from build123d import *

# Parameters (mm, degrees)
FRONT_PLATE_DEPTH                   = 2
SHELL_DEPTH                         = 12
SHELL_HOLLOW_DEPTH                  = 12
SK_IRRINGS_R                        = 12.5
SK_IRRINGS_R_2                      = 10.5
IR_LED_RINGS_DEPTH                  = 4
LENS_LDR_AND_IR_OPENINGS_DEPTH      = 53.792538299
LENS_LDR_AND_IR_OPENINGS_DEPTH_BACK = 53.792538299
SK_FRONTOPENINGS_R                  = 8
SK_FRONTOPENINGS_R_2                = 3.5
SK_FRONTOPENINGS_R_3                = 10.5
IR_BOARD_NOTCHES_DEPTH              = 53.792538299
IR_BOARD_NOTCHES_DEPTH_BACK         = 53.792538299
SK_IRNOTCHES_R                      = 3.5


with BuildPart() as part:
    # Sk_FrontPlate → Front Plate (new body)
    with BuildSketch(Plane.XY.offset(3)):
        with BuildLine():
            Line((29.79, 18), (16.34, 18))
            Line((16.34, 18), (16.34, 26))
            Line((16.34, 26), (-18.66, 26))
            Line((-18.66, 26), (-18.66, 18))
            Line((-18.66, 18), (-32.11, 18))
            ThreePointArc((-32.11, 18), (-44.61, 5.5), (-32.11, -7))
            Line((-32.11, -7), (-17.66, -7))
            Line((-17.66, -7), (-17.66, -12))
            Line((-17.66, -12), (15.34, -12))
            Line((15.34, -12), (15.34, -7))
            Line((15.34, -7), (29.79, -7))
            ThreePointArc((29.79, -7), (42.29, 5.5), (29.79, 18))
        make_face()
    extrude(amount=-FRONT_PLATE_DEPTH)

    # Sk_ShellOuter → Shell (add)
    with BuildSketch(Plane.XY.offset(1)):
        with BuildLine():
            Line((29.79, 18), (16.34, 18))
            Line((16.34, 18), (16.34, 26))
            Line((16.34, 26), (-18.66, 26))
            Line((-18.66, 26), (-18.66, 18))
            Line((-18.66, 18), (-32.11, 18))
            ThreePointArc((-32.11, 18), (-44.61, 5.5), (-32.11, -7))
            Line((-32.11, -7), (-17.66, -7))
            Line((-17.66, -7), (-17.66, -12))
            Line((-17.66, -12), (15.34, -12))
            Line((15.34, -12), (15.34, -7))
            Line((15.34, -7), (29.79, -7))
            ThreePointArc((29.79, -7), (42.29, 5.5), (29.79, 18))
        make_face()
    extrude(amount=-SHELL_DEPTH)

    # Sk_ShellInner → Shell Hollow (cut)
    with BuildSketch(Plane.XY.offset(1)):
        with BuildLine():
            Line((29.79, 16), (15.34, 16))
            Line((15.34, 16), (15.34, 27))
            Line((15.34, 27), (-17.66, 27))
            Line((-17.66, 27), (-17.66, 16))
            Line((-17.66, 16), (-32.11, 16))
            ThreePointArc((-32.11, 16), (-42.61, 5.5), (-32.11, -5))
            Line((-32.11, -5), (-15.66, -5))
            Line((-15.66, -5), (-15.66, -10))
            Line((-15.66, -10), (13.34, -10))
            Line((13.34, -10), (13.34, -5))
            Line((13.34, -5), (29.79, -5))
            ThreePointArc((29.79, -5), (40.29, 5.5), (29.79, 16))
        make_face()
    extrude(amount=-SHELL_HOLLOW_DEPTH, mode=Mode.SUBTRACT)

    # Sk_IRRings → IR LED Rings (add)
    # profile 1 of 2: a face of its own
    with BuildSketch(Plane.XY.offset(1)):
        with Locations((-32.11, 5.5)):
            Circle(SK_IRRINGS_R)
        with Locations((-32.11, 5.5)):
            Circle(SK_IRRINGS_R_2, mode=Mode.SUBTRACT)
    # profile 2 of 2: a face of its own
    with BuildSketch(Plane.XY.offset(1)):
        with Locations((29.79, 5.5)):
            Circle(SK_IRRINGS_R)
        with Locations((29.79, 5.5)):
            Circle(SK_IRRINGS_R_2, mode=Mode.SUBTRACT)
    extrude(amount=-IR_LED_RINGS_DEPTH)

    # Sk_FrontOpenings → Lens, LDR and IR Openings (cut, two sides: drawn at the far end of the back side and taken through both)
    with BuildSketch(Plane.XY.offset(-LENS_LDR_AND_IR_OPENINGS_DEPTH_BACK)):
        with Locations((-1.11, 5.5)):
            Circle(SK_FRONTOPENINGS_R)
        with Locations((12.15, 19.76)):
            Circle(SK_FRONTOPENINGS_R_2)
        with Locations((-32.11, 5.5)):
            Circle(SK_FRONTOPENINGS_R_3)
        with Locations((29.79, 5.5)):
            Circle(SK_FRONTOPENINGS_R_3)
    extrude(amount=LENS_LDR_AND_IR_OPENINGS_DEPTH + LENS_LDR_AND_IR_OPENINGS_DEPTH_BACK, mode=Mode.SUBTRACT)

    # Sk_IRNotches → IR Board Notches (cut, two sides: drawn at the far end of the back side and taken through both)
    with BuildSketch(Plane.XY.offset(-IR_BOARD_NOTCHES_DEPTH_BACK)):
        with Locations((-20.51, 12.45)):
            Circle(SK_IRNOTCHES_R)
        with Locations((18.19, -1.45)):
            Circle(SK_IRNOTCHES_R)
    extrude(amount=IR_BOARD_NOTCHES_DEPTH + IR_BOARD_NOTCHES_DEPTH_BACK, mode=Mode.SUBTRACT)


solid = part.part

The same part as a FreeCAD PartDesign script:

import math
import FreeCAD as App
import Part
import Sketcher
from FreeCAD import Vector
Q = App.Units.Quantity

doc = App.newDocument("Part")
body = doc.addObject("PartDesign::Body", "Body")

# Sketch on XY plane
sketch1 = body.newObject("Sketcher::SketchObject", "Sketch")
sketch1.AttachmentSupport = (doc.getObject("XY_Plane"), [""])
sketch1.MapMode = "FlatFace"
sketch1.AttachmentOffset = App.Placement(Vector(0, 0, 3), App.Rotation())
sketch1.addGeometry(Part.LineSegment(Vector(30, 18, 0), Vector(16, 18, 0)), False)
sketch1.addGeometry(Part.LineSegment(Vector(16, 18, 0), Vector(16, 26, 0)), False)
sketch1.addGeometry(Part.LineSegment(Vector(16, 26, 0), Vector(-19, 26, 0)), False)
sketch1.addGeometry(Part.LineSegment(Vector(-19, 26, 0), Vector(-19, 18, 0)), False)
sketch1.addGeometry(Part.LineSegment(Vector(-19, 18, 0), Vector(-32, 18, 0)), False)
sketch1.addGeometry(Part.ArcOfCircle(Part.Circle(Vector(-32, 6, 0), Vector(0, 0, 1), 12), math.radians(90), math.radians(270)), False)
sketch1.addGeometry(Part.LineSegment(Vector(-32, -7, 0), Vector(-18, -7, 0)), False)
sketch1.addGeometry(Part.LineSegment(Vector(-18, -7, 0), Vector(-18, -12, 0)), False)
sketch1.addGeometry(Part.LineSegment(Vector(-18, -12, 0), Vector(15, -12, 0)), False)
sketch1.addGeometry(Part.LineSegment(Vector(15, -12, 0), Vector(15, -7, 0)), False)
sketch1.addGeometry(Part.LineSegment(Vector(15, -7, 0), Vector(30, -7, 0)), False)
sketch1.addGeometry(Part.ArcOfCircle(Part.Circle(Vector(30, 6, 0), Vector(0, 0, 1), 12), math.radians(-90), math.radians(90)), False)
sketch1.addConstraint(Sketcher.Constraint("Coincident", 0, 2, 1, 1))
sketch1.addConstraint(Sketcher.Constraint("Coincident", 1, 2, 2, 1))
sketch1.addConstraint(Sketcher.Constraint("Coincident", 2, 2, 3, 1))
sketch1.addConstraint(Sketcher.Constraint("Coincident", 3, 2, 4, 1))
sketch1.addConstraint(Sketcher.Constraint("Tangent", 4, 2, 5, 1))
sketch1.addConstraint(Sketcher.Constraint("Tangent", 5, 2, 6, 1))
sketch1.addConstraint(Sketcher.Constraint("Coincident", 6, 2, 7, 1))
sketch1.addConstraint(Sketcher.Constraint("Coincident", 7, 2, 8, 1))
sketch1.addConstraint(Sketcher.Constraint("Coincident", 8, 2, 9, 1))
sketch1.addConstraint(Sketcher.Constraint("Coincident", 9, 2, 10, 1))
sketch1.addConstraint(Sketcher.Constraint("Tangent", 10, 2, 11, 1))
sketch1.addConstraint(Sketcher.Constraint("Tangent", 11, 2, 0, 1))
sketch1.addConstraint(Sketcher.Constraint("Horizontal", 0))
sketch1.addConstraint(Sketcher.Constraint("Vertical", 1))
sketch1.addConstraint(Sketcher.Constraint("Horizontal", 2))
sketch1.addConstraint(Sketcher.Constraint("Vertical", 3))
sketch1.addConstraint(Sketcher.Constraint("Horizontal", 4))
sketch1.addConstraint(Sketcher.Constraint("Horizontal", 6))
sketch1.addConstraint(Sketcher.Constraint("Vertical", 7))
sketch1.addConstraint(Sketcher.Constraint("Horizontal", 8))
sketch1.addConstraint(Sketcher.Constraint("Vertical", 9))
sketch1.addConstraint(Sketcher.Constraint("Horizontal", 10))
sketch1.addConstraint(Sketcher.Constraint("Equal", 5, 11))
sketch1.addConstraint(Sketcher.Constraint("Horizontal", 5, 3, 11, 3))
sketch1.addConstraint(Sketcher.Constraint("Equal", 0, 4))
sketch1.addConstraint(Sketcher.Constraint("Equal", 6, 10))
sketch1.addConstraint(Sketcher.Constraint("Radius", 5, Q("12.5 mm")))
sketch1.addConstraint(Sketcher.Constraint("DistanceX", 2, 2, 2, 1, Q("35 mm")))
sketch1.addConstraint(Sketcher.Constraint("DistanceX", 8, 1, 8, 2, Q("33 mm")))
sketch1.addConstraint(Sketcher.Constraint("DistanceY", 1, 1, 1, 2, Q("8 mm")))
sketch1.addConstraint(Sketcher.Constraint("DistanceY", 7, 2, 7, 1, Q("5 mm")))
sketch1.addConstraint(Sketcher.Constraint("DistanceY", -1, 1, 0, 2, Q("18 mm")))
sketch1.addConstraint(Sketcher.Constraint("DistanceX", 0, 2, 0, 1, Q("13.45 mm")))
sketch1.addConstraint(Sketcher.Constraint("DistanceX", 5, 3, -1, 1, Q("32.11 mm")))
pad1 = body.newObject("PartDesign::Pad", "Pad")
pad1.Profile = sketch1
pad1.Length = 2
pad1.Reversed = True

# Sketch on XY plane
sketch2 = body.newObject("Sketcher::SketchObject", "Sketch001")
sketch2.AttachmentSupport = (doc.getObject("XY_Plane"), [""])
sketch2.MapMode = "FlatFace"
sketch2.AttachmentOffset = App.Placement(Vector(0, 0, 1), App.Rotation())
sketch2.addGeometry(Part.LineSegment(Vector(30, 18, 0), Vector(16, 18, 0)), False)
sketch2.addGeometry(Part.LineSegment(Vector(16, 18, 0), Vector(16, 26, 0)), False)
sketch2.addGeometry(Part.LineSegment(Vector(16, 26, 0), Vector(-19, 26, 0)), False)
sketch2.addGeometry(Part.LineSegment(Vector(-19, 26, 0), Vector(-19, 18, 0)), False)
sketch2.addGeometry(Part.LineSegment(Vector(-19, 18, 0), Vector(-32, 18, 0)), False)
sketch2.addGeometry(Part.ArcOfCircle(Part.Circle(Vector(-32, 6, 0), Vector(0, 0, 1), 12), math.radians(90), math.radians(270)), False)
sketch2.addGeometry(Part.LineSegment(Vector(-32, -7, 0), Vector(-18, -7, 0)), False)
sketch2.addGeometry(Part.LineSegment(Vector(-18, -7, 0), Vector(-18, -12, 0)), False)
sketch2.addGeometry(Part.LineSegment(Vector(-18, -12, 0), Vector(15, -12, 0)), False)
sketch2.addGeometry(Part.LineSegment(Vector(15, -12, 0), Vector(15, -7, 0)), False)
sketch2.addGeometry(Part.LineSegment(Vector(15, -7, 0), Vector(30, -7, 0)), False)
sketch2.addGeometry(Part.ArcOfCircle(Part.Circle(Vector(30, 6, 0), Vector(0, 0, 1), 12), math.radians(-90), math.radians(90)), False)
sketch2.addConstraint(Sketcher.Constraint("Coincident", 0, 2, 1, 1))
sketch2.addConstraint(Sketcher.Constraint("Coincident", 1, 2, 2, 1))
sketch2.addConstraint(Sketcher.Constraint("Coincident", 2, 2, 3, 1))
sketch2.addConstraint(Sketcher.Constraint("Coincident", 3, 2, 4, 1))
sketch2.addConstraint(Sketcher.Constraint("Tangent", 4, 2, 5, 1))
sketch2.addConstraint(Sketcher.Constraint("Tangent", 5, 2, 6, 1))
sketch2.addConstraint(Sketcher.Constraint("Coincident", 6, 2, 7, 1))
sketch2.addConstraint(Sketcher.Constraint("Coincident", 7, 2, 8, 1))
sketch2.addConstraint(Sketcher.Constraint("Coincident", 8, 2, 9, 1))
sketch2.addConstraint(Sketcher.Constraint("Coincident", 9, 2, 10, 1))
sketch2.addConstraint(Sketcher.Constraint("Tangent", 10, 2, 11, 1))
sketch2.addConstraint(Sketcher.Constraint("Tangent", 11, 2, 0, 1))
sketch2.addConstraint(Sketcher.Constraint("Horizontal", 0))
sketch2.addConstraint(Sketcher.Constraint("Vertical", 1))
sketch2.addConstraint(Sketcher.Constraint("Horizontal", 2))
sketch2.addConstraint(Sketcher.Constraint("Vertical", 3))
sketch2.addConstraint(Sketcher.Constraint("Horizontal", 4))
sketch2.addConstraint(Sketcher.Constraint("Horizontal", 6))
sketch2.addConstraint(Sketcher.Constraint("Vertical", 7))
sketch2.addConstraint(Sketcher.Constraint("Horizontal", 8))
sketch2.addConstraint(Sketcher.Constraint("Vertical", 9))
sketch2.addConstraint(Sketcher.Constraint("Horizontal", 10))
sketch2.addConstraint(Sketcher.Constraint("Equal", 5, 11))
sketch2.addConstraint(Sketcher.Constraint("Horizontal", 5, 3, 11, 3))
sketch2.addConstraint(Sketcher.Constraint("Equal", 0, 4))
sketch2.addConstraint(Sketcher.Constraint("Equal", 6, 10))
sketch2.addConstraint(Sketcher.Constraint("Radius", 5, Q("12.5 mm")))
sketch2.addConstraint(Sketcher.Constraint("DistanceX", 2, 2, 2, 1, Q("35 mm")))
sketch2.addConstraint(Sketcher.Constraint("DistanceX", 8, 1, 8, 2, Q("33 mm")))
sketch2.addConstraint(Sketcher.Constraint("DistanceY", 1, 1, 1, 2, Q("8 mm")))
sketch2.addConstraint(Sketcher.Constraint("DistanceY", 7, 2, 7, 1, Q("5 mm")))
sketch2.addConstraint(Sketcher.Constraint("DistanceY", -1, 1, 0, 2, Q("18 mm")))
sketch2.addConstraint(Sketcher.Constraint("DistanceX", 0, 2, 0, 1, Q("13.45 mm")))
sketch2.addConstraint(Sketcher.Constraint("DistanceX", 5, 3, -1, 1, Q("32.11 mm")))
pad2 = body.newObject("PartDesign::Pad", "Pad001")
pad2.Profile = sketch2
pad2.Length = 12
pad2.Reversed = True

# Sketch on XY plane
sketch3 = body.newObject("Sketcher::SketchObject", "Sketch002")
sketch3.AttachmentSupport = (doc.getObject("XY_Plane"), [""])
sketch3.MapMode = "FlatFace"
sketch3.AttachmentOffset = App.Placement(Vector(0, 0, 1), App.Rotation())
sketch3.addGeometry(Part.LineSegment(Vector(30, 16, 0), Vector(15, 16, 0)), False)
sketch3.addGeometry(Part.LineSegment(Vector(15, 16, 0), Vector(15, 27, 0)), False)
sketch3.addGeometry(Part.LineSegment(Vector(15, 27, 0), Vector(-18, 27, 0)), False)
sketch3.addGeometry(Part.LineSegment(Vector(-18, 27, 0), Vector(-18, 16, 0)), False)
sketch3.addGeometry(Part.LineSegment(Vector(-18, 16, 0), Vector(-32, 16, 0)), False)
sketch3.addGeometry(Part.ArcOfCircle(Part.Circle(Vector(-32, 6, 0), Vector(0, 0, 1), 10), math.radians(90), math.radians(270)), False)
sketch3.addGeometry(Part.LineSegment(Vector(-32, -5, 0), Vector(-16, -5, 0)), False)
sketch3.addGeometry(Part.LineSegment(Vector(-16, -5, 0), Vector(-16, -10, 0)), False)
sketch3.addGeometry(Part.LineSegment(Vector(-16, -10, 0), Vector(13, -10, 0)), False)
sketch3.addGeometry(Part.LineSegment(Vector(13, -10, 0), Vector(13, -5, 0)), False)
sketch3.addGeometry(Part.LineSegment(Vector(13, -5, 0), Vector(30, -5, 0)), False)
sketch3.addGeometry(Part.ArcOfCircle(Part.Circle(Vector(30, 6, 0), Vector(0, 0, 1), 10), math.radians(-90), math.radians(90)), False)
sketch3.addConstraint(Sketcher.Constraint("Coincident", 0, 2, 1, 1))
sketch3.addConstraint(Sketcher.Constraint("Coincident", 1, 2, 2, 1))
sketch3.addConstraint(Sketcher.Constraint("Coincident", 2, 2, 3, 1))
sketch3.addConstraint(Sketcher.Constraint("Coincident", 3, 2, 4, 1))
sketch3.addConstraint(Sketcher.Constraint("Tangent", 4, 2, 5, 1))
sketch3.addConstraint(Sketcher.Constraint("Tangent", 5, 2, 6, 1))
sketch3.addConstraint(Sketcher.Constraint("Coincident", 6, 2, 7, 1))
sketch3.addConstraint(Sketcher.Constraint("Coincident", 7, 2, 8, 1))
sketch3.addConstraint(Sketcher.Constraint("Coincident", 8, 2, 9, 1))
sketch3.addConstraint(Sketcher.Constraint("Coincident", 9, 2, 10, 1))
sketch3.addConstraint(Sketcher.Constraint("Tangent", 10, 2, 11, 1))
sketch3.addConstraint(Sketcher.Constraint("Tangent", 11, 2, 0, 1))
sketch3.addConstraint(Sketcher.Constraint("Horizontal", 0))
sketch3.addConstraint(Sketcher.Constraint("Vertical", 1))
sketch3.addConstraint(Sketcher.Constraint("Horizontal", 2))
sketch3.addConstraint(Sketcher.Constraint("Vertical", 3))
sketch3.addConstraint(Sketcher.Constraint("Horizontal", 4))
sketch3.addConstraint(Sketcher.Constraint("Horizontal", 6))
sketch3.addConstraint(Sketcher.Constraint("Vertical", 7))
sketch3.addConstraint(Sketcher.Constraint("Horizontal", 8))
sketch3.addConstraint(Sketcher.Constraint("Vertical", 9))
sketch3.addConstraint(Sketcher.Constraint("Horizontal", 10))
sketch3.addConstraint(Sketcher.Constraint("Equal", 5, 11))
sketch3.addConstraint(Sketcher.Constraint("Horizontal", 5, 3, 11, 3))
sketch3.addConstraint(Sketcher.Constraint("Equal", 0, 4))
sketch3.addConstraint(Sketcher.Constraint("Equal", 6, 10))
sketch3.addConstraint(Sketcher.Constraint("Radius", 5, Q("10.5 mm")))
sketch3.addConstraint(Sketcher.Constraint("DistanceX", 2, 2, 2, 1, Q("33 mm")))
sketch3.addConstraint(Sketcher.Constraint("DistanceX", 8, 1, 8, 2, Q("29 mm")))
sketch3.addConstraint(Sketcher.Constraint("DistanceY", 1, 1, 1, 2, Q("11 mm")))
sketch3.addConstraint(Sketcher.Constraint("DistanceY", 7, 2, 7, 1, Q("5 mm")))
sketch3.addConstraint(Sketcher.Constraint("DistanceY", -1, 1, 0, 2, Q("16 mm")))
sketch3.addConstraint(Sketcher.Constraint("DistanceX", 0, 2, 0, 1, Q("14.45 mm")))
sketch3.addConstraint(Sketcher.Constraint("DistanceX", 5, 3, -1, 1, Q("32.11 mm")))
pocket1 = body.newObject("PartDesign::Pocket", "Pocket")
pocket1.Profile = sketch3
pocket1.Length = 12

# Sketch on XY plane
sketch4 = body.newObject("Sketcher::SketchObject", "Sketch003")
sketch4.AttachmentSupport = (doc.getObject("XY_Plane"), [""])
sketch4.MapMode = "FlatFace"
sketch4.AttachmentOffset = App.Placement(Vector(0, 0, 1), App.Rotation())
sketch4.addGeometry(Part.Circle(Vector(-32, 6, 0), Vector(0, 0, 1), 12), False)
sketch4.addGeometry(Part.Circle(Vector(-32, 6, 0), Vector(0, 0, 1), 10), False)
sketch4.addGeometry(Part.Circle(Vector(30, 6, 0), Vector(0, 0, 1), 12), False)
sketch4.addGeometry(Part.Circle(Vector(30, 6, 0), Vector(0, 0, 1), 10), False)
sketch4.addConstraint(Sketcher.Constraint("Coincident", 1, 3, 0, 3))
sketch4.addConstraint(Sketcher.Constraint("Coincident", 3, 3, 2, 3))
sketch4.addConstraint(Sketcher.Constraint("Equal", 0, 2))
sketch4.addConstraint(Sketcher.Constraint("Equal", 1, 3))
sketch4.addConstraint(Sketcher.Constraint("Horizontal", 1, 3, 2, 3))
sketch4.addConstraint(Sketcher.Constraint("Diameter", 0, Q("25 mm")))
sketch4.addConstraint(Sketcher.Constraint("Diameter", 1, Q("21 mm")))
sketch4.addConstraint(Sketcher.Constraint("DistanceY", -1, 1, 0, 3, Q("5.5 mm")))
sketch4.addConstraint(Sketcher.Constraint("DistanceX", 0, 3, 2, 3, Q("61.9 mm")))
sketch4.addConstraint(Sketcher.Constraint("DistanceX", 0, 3, -1, 1, Q("32.11 mm")))
pad3 = body.newObject("PartDesign::Pad", "Pad002")
pad3.Profile = sketch4
pad3.Length = 4
pad3.Reversed = True

# Sketch on XY plane
sketch5 = body.newObject("Sketcher::SketchObject", "Sketch004")
sketch5.AttachmentSupport = (doc.getObject("XY_Plane"), [""])
sketch5.MapMode = "FlatFace"
sketch5.addGeometry(Part.Circle(Vector(-1.1, 5.5, 0), Vector(0, 0, 1), 8), False)
sketch5.addGeometry(Part.Circle(Vector(12.2, 19.8, 0), Vector(0, 0, 1), 3.5), False)
sketch5.addGeometry(Part.Circle(Vector(-32.1, 5.5, 0), Vector(0, 0, 1), 10.5), False)
sketch5.addGeometry(Part.Circle(Vector(29.8, 5.5, 0), Vector(0, 0, 1), 10.5), False)
sketch5.addConstraint(Sketcher.Constraint("Equal", 2, 3))
sketch5.addConstraint(Sketcher.Constraint("Horizontal", 0, 3, 2, 3))
sketch5.addConstraint(Sketcher.Constraint("Horizontal", 2, 3, 3, 3))
sketch5.addConstraint(Sketcher.Constraint("Diameter", 0, Q("16 mm")))
sketch5.addConstraint(Sketcher.Constraint("Diameter", 1, Q("7 mm")))
sketch5.addConstraint(Sketcher.Constraint("Diameter", 2, Q("21 mm")))
sketch5.addConstraint(Sketcher.Constraint("DistanceX", 2, 3, 0, 3, Q("31 mm")))
sketch5.addConstraint(Sketcher.Constraint("DistanceY", -1, 1, 0, 3, Q("5.5 mm")))
sketch5.addConstraint(Sketcher.Constraint("DistanceX", 0, 3, 3, 3, Q("30.9 mm")))
sketch5.addConstraint(Sketcher.Constraint("DistanceX", 0, 3, -1, 1, Q("1.11 mm")))
sketch5.addConstraint(Sketcher.Constraint("DistanceX", -1, 1, 1, 3, Q("12.15 mm")))
sketch5.addConstraint(Sketcher.Constraint("DistanceY", -1, 1, 1, 3, Q("19.76 mm")))
pocket2 = body.newObject("PartDesign::Pocket", "Pocket001")
pocket2.Profile = sketch5
pocket2.Type = "ThroughAll"
pocket2.Midplane = True

# Sketch on XY plane
sketch6 = body.newObject("Sketcher::SketchObject", "Sketch005")
sketch6.AttachmentSupport = (doc.getObject("XY_Plane"), [""])
sketch6.MapMode = "FlatFace"
sketch6.addGeometry(Part.Circle(Vector(-20.5, 12.4, 0), Vector(0, 0, 1), 3.5), False)
sketch6.addGeometry(Part.Circle(Vector(18.2, -1.4, 0), Vector(0, 0, 1), 3.5), False)
sketch6.addConstraint(Sketcher.Constraint("Equal", 0, 1))
sketch6.addConstraint(Sketcher.Constraint("Diameter", 0, Q("7 mm")))
sketch6.addConstraint(Sketcher.Constraint("DistanceX", 0, 3, 1, 3, Q("38.7 mm")))
sketch6.addConstraint(Sketcher.Constraint("DistanceY", 1, 3, 0, 3, Q("13.9 mm")))
sketch6.addConstraint(Sketcher.Constraint("DistanceX", 0, 3, -1, 1, Q("20.51 mm")))
sketch6.addConstraint(Sketcher.Constraint("DistanceY", -1, 1, 0, 3, Q("12.45 mm")))
pocket3 = body.newObject("PartDesign::Pocket", "Pocket002")
pocket3.Profile = sketch6
pocket3.Type = "ThroughAll"
pocket3.Midplane = True

doc.recompute()
